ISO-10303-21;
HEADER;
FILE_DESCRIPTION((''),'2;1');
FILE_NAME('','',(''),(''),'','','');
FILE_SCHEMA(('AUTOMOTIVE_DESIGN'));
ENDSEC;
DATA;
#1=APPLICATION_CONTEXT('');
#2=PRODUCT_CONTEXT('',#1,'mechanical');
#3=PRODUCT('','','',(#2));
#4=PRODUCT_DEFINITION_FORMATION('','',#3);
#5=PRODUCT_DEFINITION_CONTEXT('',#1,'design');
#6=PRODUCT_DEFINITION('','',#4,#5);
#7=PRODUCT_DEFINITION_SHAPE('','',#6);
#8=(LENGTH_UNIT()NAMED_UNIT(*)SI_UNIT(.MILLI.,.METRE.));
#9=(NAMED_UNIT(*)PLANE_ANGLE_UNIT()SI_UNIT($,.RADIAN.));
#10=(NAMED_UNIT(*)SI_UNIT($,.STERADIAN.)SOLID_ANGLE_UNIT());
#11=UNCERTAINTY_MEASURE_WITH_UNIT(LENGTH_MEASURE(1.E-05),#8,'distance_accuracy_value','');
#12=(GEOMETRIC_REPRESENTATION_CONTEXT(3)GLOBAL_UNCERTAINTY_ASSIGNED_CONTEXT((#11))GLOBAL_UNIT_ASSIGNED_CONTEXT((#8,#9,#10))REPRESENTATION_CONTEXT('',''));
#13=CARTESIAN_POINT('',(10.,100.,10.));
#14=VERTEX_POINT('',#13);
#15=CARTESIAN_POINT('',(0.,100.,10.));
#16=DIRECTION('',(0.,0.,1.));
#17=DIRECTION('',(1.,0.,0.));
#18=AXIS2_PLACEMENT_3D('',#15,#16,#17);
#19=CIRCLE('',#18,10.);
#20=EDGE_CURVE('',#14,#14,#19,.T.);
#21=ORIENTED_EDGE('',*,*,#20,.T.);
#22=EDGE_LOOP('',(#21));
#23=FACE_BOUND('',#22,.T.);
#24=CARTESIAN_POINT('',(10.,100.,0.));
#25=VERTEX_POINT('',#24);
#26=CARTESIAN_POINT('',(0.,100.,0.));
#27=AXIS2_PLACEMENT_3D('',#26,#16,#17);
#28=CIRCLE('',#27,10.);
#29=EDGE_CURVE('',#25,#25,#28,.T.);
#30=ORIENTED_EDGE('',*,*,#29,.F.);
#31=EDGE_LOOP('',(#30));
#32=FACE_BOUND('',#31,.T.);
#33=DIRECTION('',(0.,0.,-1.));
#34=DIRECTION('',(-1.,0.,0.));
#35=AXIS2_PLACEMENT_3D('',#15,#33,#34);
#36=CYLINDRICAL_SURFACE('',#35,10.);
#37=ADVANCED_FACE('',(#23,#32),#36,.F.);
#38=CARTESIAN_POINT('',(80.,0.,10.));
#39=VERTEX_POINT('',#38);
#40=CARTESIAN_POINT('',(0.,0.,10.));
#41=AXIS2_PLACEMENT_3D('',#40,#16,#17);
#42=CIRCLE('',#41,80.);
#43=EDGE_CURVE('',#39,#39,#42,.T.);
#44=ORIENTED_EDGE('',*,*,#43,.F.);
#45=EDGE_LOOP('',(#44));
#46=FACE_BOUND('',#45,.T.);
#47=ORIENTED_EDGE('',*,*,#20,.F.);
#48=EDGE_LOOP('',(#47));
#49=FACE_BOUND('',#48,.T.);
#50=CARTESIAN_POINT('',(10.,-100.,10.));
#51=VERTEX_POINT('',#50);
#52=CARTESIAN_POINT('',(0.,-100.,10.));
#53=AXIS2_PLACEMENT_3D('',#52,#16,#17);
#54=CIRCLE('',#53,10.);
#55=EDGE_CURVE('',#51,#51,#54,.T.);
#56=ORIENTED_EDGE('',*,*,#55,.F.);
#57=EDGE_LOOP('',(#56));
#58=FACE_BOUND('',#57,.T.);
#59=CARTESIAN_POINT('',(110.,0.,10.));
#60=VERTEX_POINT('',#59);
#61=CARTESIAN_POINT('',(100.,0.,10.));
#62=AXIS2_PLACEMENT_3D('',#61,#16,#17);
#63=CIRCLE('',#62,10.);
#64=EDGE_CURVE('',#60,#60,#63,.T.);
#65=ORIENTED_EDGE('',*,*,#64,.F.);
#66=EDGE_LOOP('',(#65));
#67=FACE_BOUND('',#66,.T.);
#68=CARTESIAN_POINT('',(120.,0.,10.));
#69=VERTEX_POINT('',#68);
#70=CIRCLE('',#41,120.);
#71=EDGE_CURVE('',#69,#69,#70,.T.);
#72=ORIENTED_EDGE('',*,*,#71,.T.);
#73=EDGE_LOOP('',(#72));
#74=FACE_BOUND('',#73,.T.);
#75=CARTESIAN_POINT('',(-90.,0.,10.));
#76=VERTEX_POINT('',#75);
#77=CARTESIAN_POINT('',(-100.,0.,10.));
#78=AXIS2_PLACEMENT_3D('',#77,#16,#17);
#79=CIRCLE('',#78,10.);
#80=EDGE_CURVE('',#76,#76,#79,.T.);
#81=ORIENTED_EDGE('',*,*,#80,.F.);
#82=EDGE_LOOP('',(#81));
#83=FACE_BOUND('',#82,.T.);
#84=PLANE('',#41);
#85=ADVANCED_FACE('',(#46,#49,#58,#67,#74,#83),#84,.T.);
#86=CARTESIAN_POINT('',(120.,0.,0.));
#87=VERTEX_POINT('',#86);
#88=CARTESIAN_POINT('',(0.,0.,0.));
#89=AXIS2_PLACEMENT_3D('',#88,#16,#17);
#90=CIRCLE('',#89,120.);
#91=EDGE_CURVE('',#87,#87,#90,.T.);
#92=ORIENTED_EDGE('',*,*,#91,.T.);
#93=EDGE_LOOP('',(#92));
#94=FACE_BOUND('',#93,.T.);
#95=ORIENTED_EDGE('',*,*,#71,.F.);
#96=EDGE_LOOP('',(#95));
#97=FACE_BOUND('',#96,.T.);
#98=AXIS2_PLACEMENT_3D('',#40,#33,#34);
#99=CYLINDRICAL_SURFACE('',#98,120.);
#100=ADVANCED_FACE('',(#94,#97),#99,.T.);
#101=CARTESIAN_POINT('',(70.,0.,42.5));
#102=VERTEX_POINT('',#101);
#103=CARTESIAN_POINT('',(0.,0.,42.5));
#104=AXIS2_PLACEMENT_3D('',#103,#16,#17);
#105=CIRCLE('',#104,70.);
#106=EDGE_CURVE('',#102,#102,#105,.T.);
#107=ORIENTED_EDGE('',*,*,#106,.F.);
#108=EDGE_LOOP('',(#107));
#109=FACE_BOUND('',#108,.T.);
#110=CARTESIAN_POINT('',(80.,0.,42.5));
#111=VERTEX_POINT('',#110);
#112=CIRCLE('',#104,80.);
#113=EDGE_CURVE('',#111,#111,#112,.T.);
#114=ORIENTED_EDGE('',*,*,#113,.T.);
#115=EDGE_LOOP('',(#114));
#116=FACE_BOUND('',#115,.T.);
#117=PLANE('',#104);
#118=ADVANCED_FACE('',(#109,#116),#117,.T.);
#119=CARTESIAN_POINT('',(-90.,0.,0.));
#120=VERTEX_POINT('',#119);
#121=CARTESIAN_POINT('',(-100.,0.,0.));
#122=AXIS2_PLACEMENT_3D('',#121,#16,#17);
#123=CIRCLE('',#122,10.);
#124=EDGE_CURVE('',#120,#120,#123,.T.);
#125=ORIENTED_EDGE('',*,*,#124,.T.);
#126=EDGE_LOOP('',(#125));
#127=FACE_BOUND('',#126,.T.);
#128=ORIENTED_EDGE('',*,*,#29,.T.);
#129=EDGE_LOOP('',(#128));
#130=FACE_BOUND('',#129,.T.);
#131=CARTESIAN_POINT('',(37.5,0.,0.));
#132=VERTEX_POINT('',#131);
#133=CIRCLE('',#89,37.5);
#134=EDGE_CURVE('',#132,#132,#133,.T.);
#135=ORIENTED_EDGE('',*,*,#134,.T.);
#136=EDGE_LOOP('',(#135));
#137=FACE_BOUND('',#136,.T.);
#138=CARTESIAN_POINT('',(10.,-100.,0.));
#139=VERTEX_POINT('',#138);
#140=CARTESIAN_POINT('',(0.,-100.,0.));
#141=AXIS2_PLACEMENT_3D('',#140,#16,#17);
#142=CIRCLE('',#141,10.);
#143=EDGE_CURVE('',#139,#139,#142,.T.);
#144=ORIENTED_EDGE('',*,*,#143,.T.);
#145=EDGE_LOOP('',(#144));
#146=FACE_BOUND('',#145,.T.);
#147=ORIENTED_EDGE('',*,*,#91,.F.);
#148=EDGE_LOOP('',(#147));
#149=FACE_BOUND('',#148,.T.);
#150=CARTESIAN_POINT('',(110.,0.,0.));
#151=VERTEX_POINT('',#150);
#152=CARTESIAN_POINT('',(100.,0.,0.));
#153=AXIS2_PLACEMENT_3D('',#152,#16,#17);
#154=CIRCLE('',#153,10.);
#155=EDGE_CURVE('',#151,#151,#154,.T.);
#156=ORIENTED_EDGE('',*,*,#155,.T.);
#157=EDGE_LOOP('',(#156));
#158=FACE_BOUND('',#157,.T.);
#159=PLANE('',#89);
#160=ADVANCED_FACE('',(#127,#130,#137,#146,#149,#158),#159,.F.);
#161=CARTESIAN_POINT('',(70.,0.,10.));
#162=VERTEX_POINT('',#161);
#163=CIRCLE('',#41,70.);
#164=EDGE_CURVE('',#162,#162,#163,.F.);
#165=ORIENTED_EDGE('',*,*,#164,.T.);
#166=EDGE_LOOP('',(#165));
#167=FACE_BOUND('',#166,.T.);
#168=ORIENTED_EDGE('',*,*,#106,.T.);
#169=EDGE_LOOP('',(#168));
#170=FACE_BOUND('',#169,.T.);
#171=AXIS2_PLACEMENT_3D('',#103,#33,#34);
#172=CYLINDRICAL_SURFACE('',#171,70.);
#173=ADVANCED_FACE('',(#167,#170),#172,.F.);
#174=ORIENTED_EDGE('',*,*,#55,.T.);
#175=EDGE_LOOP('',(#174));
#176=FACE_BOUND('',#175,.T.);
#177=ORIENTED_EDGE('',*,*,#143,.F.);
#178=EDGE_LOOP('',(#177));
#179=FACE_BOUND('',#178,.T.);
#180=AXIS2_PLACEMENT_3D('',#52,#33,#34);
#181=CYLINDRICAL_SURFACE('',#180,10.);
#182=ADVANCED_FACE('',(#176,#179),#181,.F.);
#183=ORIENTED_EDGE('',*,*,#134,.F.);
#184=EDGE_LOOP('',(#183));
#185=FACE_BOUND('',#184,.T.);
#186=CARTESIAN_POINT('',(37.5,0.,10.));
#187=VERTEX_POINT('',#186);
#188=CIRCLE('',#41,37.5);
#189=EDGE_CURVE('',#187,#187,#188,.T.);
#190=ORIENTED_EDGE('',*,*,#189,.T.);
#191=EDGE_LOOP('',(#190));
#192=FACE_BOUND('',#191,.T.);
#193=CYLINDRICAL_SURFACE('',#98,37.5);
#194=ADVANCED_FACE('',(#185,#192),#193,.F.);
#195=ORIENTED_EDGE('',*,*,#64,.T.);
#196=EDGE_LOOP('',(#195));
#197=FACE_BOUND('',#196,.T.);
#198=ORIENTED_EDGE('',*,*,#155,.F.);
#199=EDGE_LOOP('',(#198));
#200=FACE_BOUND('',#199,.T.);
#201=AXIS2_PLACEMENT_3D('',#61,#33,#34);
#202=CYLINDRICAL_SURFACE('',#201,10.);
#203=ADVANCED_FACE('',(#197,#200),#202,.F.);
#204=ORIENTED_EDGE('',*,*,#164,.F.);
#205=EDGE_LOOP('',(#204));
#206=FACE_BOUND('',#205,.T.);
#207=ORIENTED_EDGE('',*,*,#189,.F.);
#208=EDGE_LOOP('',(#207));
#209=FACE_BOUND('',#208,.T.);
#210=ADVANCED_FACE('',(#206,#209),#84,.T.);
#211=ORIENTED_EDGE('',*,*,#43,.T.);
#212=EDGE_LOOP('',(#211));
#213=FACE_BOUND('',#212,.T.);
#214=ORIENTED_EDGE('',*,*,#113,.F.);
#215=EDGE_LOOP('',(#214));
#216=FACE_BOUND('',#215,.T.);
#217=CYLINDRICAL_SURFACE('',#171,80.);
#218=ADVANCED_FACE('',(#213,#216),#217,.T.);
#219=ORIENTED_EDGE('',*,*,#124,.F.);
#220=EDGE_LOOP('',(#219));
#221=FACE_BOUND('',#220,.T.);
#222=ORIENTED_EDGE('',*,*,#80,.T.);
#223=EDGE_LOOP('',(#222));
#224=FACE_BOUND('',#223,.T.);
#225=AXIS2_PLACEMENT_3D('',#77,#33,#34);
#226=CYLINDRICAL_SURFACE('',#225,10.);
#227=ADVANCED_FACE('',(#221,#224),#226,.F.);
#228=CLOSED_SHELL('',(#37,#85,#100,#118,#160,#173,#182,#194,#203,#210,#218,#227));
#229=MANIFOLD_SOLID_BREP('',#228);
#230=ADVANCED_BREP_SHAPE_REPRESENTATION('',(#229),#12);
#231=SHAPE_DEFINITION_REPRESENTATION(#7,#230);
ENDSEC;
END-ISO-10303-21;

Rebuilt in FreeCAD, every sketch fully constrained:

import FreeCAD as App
import Part
import Sketcher

doc = App.newDocument("Part")
body = doc.addObject("PartDesign::Body", "Body")

sketch1 = body.newObject("Sketcher::SketchObject", "Sketch")
sketch1.AttachmentSupport = (doc.getObject("XY_Plane"), [""])
sketch1.MapMode = "FlatFace"
sketch1.addGeometry(Part.Circle(App.Vector(0, 0, 0), App.Vector(0, 0, 1), 120), False)
sketch1.addGeometry(Part.Circle(App.Vector(0, -100, 0), App.Vector(0, 0, 1), 10), False)
sketch1.addGeometry(Part.Circle(App.Vector(-100, 0, 0), App.Vector(0, 0, 1), 10), False)
sketch1.addGeometry(Part.Circle(App.Vector(0, 0, 0), App.Vector(0, 0, 1), 37.5), False)
sketch1.addGeometry(Part.Circle(App.Vector(100, 0, 0), App.Vector(0, 0, 1), 10), False)
sketch1.addGeometry(Part.Circle(App.Vector(0, 100, 0), App.Vector(0, 0, 1), 10), False)
sketch1.addConstraint(Sketcher.Constraint("Coincident", 0, 3, -1, 1))
sketch1.addConstraint(Sketcher.Constraint("Coincident", 3, 3, -1, 1))
sketch1.addConstraint(Sketcher.Constraint("Equal", 1, 2))
sketch1.addConstraint(Sketcher.Constraint("Equal", 2, 4))
sketch1.addConstraint(Sketcher.Constraint("Equal", 4, 5))
sketch1.addConstraint(Sketcher.Constraint("Symmetric", 2, 3, 4, 3, -1, 1))
sketch1.addConstraint(Sketcher.Constraint("Symmetric", 1, 3, 5, 3, -1, 1))
sketch1.addConstraint(Sketcher.Constraint("PointOnObject", 1, 3, -2))
sketch1.addConstraint(Sketcher.Constraint("PointOnObject", 2, 3, -1))
sketch1.addConstraint(Sketcher.Constraint("Diameter", 0, 240.0))
sketch1.addConstraint(Sketcher.Constraint("Diameter", 1, 20.0))
sketch1.addConstraint(Sketcher.Constraint("Diameter", 3, 75.0))
sketch1.addConstraint(Sketcher.Constraint("DistanceY", 1, 3, -1, 1, 100.0))
sketch1.addConstraint(Sketcher.Constraint("DistanceX", 2, 3, -1, 1, 100.0))
pad1 = body.newObject("PartDesign::Pad", "Pad")
pad1.Profile = sketch1
pad1.Length = 10

sketch2 = body.newObject("Sketcher::SketchObject", "Sketch001")
sketch2.AttachmentSupport = (doc.getObject("XY_Plane"), [""])
sketch2.MapMode = "FlatFace"
sketch2.AttachmentOffset = App.Placement(App.Vector(0, 0, 10), App.Rotation())
sketch2.addGeometry(Part.Circle(App.Vector(0, 0, 0), App.Vector(0, 0, 1), 80), False)
sketch2.addGeometry(Part.Circle(App.Vector(0, 0, 0), App.Vector(0, 0, 1), 70), False)
sketch2.addConstraint(Sketcher.Constraint("Coincident", 0, 3, -1, 1))
sketch2.addConstraint(Sketcher.Constraint("Coincident", 1, 3, -1, 1))
sketch2.addConstraint(Sketcher.Constraint("Diameter", 0, 160.0))
sketch2.addConstraint(Sketcher.Constraint("Diameter", 1, 140.0))
pad2 = body.newObject("PartDesign::Pad", "Pad001")
pad2.Profile = sketch2
pad2.Length = 32.5

doc.recompute()
